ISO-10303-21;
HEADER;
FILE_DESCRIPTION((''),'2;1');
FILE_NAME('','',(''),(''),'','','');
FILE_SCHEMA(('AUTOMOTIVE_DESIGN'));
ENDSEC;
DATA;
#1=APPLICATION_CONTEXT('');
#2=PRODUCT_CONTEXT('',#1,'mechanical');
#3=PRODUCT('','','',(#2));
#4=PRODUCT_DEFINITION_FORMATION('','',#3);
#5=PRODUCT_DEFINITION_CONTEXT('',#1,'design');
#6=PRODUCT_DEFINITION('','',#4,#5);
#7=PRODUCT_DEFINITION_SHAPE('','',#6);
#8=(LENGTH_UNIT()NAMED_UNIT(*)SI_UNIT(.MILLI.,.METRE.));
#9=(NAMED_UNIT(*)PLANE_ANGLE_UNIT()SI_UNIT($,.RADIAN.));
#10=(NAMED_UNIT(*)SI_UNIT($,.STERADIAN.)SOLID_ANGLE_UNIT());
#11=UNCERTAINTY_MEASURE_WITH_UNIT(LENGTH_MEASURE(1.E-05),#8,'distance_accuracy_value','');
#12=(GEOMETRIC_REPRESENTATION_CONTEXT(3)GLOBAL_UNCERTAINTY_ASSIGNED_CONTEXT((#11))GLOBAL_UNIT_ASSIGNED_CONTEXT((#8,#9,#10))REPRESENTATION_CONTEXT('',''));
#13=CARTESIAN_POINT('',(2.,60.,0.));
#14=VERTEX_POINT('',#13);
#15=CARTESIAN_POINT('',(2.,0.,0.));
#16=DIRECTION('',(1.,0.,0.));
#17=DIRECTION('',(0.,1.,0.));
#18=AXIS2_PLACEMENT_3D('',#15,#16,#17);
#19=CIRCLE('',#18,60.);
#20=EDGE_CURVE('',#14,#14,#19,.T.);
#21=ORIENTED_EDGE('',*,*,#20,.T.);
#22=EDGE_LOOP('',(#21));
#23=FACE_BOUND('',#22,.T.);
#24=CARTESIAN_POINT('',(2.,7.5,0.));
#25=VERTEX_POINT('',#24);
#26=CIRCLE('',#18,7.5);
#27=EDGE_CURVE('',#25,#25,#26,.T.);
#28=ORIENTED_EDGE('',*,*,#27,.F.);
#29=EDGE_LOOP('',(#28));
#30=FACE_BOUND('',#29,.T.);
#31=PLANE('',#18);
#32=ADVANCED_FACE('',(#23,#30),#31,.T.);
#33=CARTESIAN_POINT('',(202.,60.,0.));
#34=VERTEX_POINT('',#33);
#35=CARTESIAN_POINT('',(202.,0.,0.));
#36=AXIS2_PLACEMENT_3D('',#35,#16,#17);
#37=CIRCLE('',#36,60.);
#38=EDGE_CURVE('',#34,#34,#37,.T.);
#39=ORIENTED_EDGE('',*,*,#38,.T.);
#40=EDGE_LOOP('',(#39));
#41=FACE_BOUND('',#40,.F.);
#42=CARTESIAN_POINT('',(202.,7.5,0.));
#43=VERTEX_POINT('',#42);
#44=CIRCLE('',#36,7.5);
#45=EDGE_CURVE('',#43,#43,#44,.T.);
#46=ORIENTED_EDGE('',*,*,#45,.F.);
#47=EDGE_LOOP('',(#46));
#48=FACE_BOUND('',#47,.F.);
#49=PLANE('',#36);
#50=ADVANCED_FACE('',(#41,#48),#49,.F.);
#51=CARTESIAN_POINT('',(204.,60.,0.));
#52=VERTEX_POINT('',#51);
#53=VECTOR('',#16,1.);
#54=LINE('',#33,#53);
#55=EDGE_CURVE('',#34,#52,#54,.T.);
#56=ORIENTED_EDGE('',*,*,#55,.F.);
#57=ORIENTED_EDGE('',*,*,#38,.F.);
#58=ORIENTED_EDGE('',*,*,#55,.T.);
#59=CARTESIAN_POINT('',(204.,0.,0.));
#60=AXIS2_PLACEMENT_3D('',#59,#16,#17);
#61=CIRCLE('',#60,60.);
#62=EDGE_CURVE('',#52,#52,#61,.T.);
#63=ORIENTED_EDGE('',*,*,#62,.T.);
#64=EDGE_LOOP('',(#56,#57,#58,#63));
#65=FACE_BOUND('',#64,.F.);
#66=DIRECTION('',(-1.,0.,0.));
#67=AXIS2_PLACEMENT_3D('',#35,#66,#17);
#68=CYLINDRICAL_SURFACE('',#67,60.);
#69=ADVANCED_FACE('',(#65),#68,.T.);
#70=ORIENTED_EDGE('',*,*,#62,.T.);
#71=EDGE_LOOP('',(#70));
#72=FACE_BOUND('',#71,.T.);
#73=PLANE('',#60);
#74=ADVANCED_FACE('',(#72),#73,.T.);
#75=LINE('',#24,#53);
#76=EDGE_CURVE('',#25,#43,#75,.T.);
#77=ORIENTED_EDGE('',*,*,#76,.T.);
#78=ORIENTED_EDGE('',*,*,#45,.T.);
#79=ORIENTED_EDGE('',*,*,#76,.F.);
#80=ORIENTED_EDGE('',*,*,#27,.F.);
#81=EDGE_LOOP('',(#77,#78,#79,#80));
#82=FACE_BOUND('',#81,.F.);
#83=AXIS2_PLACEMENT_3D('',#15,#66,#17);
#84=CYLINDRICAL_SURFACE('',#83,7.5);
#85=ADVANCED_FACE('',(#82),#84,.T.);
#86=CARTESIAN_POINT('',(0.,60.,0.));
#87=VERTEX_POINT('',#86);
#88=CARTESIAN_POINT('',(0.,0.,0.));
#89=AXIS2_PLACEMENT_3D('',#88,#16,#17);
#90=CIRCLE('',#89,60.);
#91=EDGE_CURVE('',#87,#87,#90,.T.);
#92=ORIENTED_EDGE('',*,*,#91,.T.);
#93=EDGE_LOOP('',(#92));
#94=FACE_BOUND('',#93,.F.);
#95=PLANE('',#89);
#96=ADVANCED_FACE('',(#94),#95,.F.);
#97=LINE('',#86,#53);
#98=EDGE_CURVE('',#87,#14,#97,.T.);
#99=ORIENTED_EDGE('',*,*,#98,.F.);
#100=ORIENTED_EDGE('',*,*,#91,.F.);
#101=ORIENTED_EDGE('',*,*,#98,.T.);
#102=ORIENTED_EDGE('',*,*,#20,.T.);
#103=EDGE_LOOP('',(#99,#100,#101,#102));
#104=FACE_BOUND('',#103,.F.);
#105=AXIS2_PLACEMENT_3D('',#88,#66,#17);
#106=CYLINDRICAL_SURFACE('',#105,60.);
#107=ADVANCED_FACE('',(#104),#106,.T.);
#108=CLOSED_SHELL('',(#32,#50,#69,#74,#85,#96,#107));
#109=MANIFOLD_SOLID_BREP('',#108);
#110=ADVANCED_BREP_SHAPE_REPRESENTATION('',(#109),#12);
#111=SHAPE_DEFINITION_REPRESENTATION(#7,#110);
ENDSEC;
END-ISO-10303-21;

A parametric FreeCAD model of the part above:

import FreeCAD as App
import Part
import Sketcher

doc = App.newDocument("Part")
body = doc.addObject("PartDesign::Body", "Body")

# Sketch on YZ plane
sketch1 = body.newObject("Sketcher::SketchObject", "Sketch")
sketch1.AttachmentSupport = (doc.getObject("YZ_Plane"), [""])
sketch1.MapMode = "FlatFace"
sketch1.addGeometry(Part.Circle(App.Vector(0, 0, 0), App.Vector(0, 0, 1), 60), False)
sketch1.addConstraint([
    Sketcher.Constraint("Coincident", 0, 3, -1, 1),
    Sketcher.Constraint("Diameter", 0, 120.0),
])
pad1 = body.newObject("PartDesign::Pad", "Pad")
pad1.Profile = sketch1
pad1.Length = 2

# Sketch on YZ plane
sketch2 = body.newObject("Sketcher::SketchObject", "Sketch001")
sketch2.AttachmentSupport = (doc.getObject("YZ_Plane"), [""])
sketch2.MapMode = "FlatFace"
sketch2.AttachmentOffset = App.Placement(App.Vector(0, 0, 2), App.Rotation())
sketch2.addGeometry(Part.Circle(App.Vector(0, 0, 0), App.Vector(0, 0, 1), 8), False)
sketch2.addConstraint([
    Sketcher.Constraint("Coincident", 0, 3, -1, 1),
    Sketcher.Constraint("Diameter", 0, 15.0),
])
pad2 = body.newObject("PartDesign::Pad", "Pad001")
pad2.Profile = sketch2
pad2.Length = 200

# Sketch on YZ plane
sketch3 = body.newObject("Sketcher::SketchObject", "Sketch002")
sketch3.AttachmentSupport = (doc.getObject("YZ_Plane"), [""])
sketch3.MapMode = "FlatFace"
sketch3.AttachmentOffset = App.Placement(App.Vector(0, 0, 202), App.Rotation())
sketch3.addGeometry(Part.Circle(App.Vector(0, 0, 0), App.Vector(0, 0, 1), 60), False)
sketch3.addConstraint([
    Sketcher.Constraint("Coincident", 0, 3, -1, 1),
    Sketcher.Constraint("Diameter", 0, 120.0),
])
pad3 = body.newObject("PartDesign::Pad", "Pad002")
pad3.Profile = sketch3
pad3.Length = 2

doc.recompute()
